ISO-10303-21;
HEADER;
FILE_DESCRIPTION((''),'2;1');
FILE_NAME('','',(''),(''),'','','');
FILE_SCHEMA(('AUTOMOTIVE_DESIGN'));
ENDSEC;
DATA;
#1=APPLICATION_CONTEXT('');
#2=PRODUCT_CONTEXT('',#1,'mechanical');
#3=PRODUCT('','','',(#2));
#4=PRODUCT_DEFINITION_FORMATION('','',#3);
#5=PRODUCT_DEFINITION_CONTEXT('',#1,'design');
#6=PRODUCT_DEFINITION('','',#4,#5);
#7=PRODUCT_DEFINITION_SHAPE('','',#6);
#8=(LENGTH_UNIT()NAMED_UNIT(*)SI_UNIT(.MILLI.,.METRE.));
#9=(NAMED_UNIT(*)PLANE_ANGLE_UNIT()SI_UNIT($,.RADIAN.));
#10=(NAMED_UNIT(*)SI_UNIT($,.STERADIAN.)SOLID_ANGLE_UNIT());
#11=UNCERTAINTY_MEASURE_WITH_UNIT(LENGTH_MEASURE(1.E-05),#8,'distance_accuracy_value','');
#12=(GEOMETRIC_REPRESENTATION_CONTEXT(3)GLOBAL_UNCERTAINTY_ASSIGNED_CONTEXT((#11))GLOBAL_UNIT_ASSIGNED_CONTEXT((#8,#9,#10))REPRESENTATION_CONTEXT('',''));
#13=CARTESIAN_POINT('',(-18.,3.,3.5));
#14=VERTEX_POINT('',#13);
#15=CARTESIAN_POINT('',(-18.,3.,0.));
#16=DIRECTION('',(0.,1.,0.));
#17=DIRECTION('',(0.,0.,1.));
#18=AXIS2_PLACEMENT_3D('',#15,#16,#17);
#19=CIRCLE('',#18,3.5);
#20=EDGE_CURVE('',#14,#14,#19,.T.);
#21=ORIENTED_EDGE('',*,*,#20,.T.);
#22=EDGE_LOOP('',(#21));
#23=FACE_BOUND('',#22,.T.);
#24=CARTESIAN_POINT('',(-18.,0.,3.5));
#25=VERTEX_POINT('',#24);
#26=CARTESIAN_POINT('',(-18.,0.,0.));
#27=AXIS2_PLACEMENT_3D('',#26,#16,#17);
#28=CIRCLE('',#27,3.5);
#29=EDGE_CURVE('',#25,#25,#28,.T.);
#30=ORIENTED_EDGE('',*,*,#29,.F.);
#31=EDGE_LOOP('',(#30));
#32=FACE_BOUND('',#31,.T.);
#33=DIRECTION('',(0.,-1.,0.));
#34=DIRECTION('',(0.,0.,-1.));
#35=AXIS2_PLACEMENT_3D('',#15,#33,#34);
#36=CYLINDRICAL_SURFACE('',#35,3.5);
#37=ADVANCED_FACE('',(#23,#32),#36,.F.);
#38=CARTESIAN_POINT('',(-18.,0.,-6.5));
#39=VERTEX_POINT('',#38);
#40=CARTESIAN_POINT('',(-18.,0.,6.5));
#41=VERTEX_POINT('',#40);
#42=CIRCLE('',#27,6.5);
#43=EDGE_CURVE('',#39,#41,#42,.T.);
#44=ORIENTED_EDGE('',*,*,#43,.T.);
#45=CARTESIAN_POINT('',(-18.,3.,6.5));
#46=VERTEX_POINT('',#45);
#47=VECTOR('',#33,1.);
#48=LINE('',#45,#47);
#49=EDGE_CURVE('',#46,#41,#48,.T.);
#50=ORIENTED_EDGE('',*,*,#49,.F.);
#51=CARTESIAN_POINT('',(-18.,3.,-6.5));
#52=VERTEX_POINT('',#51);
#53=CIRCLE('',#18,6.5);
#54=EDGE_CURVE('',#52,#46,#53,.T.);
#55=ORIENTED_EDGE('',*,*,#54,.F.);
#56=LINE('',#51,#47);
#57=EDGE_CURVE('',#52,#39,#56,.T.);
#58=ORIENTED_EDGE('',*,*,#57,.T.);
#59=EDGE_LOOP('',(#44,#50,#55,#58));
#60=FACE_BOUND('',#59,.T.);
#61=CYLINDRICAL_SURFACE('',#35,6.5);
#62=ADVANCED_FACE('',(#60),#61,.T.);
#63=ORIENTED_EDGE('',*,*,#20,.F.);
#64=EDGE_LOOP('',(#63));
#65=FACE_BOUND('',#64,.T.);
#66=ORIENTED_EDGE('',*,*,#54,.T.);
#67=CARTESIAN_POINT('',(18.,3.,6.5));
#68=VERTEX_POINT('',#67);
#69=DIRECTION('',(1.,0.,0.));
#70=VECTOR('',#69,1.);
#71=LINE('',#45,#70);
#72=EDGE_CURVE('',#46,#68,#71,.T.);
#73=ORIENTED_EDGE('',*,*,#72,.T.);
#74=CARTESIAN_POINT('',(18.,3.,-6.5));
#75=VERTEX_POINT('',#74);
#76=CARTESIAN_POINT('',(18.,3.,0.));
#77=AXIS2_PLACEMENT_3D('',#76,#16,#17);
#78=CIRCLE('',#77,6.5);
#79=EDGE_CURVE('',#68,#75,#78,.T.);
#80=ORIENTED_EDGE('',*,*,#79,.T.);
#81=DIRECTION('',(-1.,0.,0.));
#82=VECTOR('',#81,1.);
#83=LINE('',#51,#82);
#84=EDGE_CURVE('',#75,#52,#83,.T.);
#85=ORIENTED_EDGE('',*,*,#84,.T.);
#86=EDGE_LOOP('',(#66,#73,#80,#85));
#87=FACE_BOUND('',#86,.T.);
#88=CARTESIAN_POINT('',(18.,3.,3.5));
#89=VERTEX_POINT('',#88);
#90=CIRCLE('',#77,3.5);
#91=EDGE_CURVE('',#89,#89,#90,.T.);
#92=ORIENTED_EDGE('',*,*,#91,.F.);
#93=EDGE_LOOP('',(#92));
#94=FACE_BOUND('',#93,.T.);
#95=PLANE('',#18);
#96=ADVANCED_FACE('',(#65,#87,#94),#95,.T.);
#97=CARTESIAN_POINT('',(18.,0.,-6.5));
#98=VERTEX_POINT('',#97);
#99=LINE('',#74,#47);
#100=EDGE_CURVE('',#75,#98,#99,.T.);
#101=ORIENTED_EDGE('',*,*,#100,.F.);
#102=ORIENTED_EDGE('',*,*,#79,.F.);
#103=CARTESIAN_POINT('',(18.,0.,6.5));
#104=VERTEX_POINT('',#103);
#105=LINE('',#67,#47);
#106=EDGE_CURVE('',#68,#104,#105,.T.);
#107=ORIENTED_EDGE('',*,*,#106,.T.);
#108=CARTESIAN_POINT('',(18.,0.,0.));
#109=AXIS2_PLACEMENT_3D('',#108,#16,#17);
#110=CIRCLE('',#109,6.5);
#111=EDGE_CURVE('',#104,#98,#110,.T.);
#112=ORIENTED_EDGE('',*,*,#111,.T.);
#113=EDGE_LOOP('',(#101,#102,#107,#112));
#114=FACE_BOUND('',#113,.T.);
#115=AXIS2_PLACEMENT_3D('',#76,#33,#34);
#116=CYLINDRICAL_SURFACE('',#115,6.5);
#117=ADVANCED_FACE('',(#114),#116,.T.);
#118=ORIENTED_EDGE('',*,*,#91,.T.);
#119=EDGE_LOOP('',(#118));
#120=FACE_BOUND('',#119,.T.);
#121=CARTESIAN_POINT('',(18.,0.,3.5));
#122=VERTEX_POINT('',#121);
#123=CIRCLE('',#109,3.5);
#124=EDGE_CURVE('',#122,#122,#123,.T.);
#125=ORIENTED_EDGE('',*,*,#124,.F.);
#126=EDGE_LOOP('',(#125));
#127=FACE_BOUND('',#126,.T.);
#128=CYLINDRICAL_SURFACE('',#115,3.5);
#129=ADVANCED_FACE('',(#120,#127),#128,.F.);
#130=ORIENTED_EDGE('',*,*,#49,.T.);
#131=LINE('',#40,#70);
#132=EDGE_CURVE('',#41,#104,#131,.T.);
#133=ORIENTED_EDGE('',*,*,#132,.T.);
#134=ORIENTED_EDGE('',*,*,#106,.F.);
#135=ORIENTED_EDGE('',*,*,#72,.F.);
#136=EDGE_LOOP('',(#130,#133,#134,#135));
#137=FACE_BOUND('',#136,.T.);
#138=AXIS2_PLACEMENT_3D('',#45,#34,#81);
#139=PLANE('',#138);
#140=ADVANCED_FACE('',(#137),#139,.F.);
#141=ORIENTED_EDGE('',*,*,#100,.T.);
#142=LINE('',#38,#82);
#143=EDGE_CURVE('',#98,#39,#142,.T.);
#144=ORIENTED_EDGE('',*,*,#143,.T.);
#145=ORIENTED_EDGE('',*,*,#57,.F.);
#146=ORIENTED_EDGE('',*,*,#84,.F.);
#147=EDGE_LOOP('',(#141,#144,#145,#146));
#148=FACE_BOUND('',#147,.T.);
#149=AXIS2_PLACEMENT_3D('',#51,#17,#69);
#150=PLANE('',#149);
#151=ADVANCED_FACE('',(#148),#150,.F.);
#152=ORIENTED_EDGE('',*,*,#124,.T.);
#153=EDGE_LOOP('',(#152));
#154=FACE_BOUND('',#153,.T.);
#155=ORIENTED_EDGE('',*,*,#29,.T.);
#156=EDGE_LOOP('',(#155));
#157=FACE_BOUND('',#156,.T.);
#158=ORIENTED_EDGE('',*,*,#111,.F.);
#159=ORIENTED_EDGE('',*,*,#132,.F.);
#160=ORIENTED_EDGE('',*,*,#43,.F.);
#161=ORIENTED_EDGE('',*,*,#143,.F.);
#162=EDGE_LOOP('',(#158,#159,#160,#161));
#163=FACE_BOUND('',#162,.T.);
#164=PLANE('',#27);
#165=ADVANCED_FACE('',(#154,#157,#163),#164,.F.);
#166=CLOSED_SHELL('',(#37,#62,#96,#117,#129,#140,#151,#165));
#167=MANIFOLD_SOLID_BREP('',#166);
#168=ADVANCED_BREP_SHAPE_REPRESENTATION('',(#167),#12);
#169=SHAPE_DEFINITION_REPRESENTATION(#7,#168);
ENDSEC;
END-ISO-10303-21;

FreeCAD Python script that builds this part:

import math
import FreeCAD as App
import Part
import Sketcher

V = App.Vector

doc = App.newDocument("Part")
body = doc.addObject("PartDesign::Body", "Body")

# Sketch on XZ plane
sketch1 = body.newObject("Sketcher::SketchObject", "Sketch")
sketch1.AttachmentSupport = (doc.getObject("XZ_Plane"), [""])
sketch1.MapMode = "FlatFace"
sketch1.addGeometry(Part.LineSegment(V(18, -6.5, 0), V(-18, -6.5, 0)), False)
sketch1.addGeometry(Part.ArcOfCircle(Part.Circle(V(-18, 0, 0), V(0, 0, 1), 6.5), math.radians(90), math.radians(270)), False)
sketch1.addGeometry(Part.LineSegment(V(-18, 6.5, 0), V(18, 6.5, 0)), False)
sketch1.addGeometry(Part.ArcOfCircle(Part.Circle(V(18, 0, 0), V(0, 0, 1), 6.5), math.radians(-90), math.radians(90)), False)
sketch1.addGeometry(Part.Circle(V(18, 0, 0), V(0, 0, 1), 3.5), False)
sketch1.addGeometry(Part.Circle(V(-18, 0, 0), V(0, 0, 1), 3.5), False)
sketch1.addConstraint(Sketcher.Constraint("Tangent", 0, 2, 1, 2))
sketch1.addConstraint(Sketcher.Constraint("Tangent", 1, 1, 2, 1))
sketch1.addConstraint(Sketcher.Constraint("Tangent", 2, 2, 3, 2))
sketch1.addConstraint(Sketcher.Constraint("Tangent", 3, 1, 0, 1))
sketch1.addConstraint(Sketcher.Constraint("Horizontal", 0))
sketch1.addConstraint(Sketcher.Constraint("Horizontal", 2))
sketch1.addConstraint(Sketcher.Constraint("Coincident", 4, 3, 3, 3))
sketch1.addConstraint(Sketcher.Constraint("Coincident", 5, 3, 1, 3))
sketch1.addConstraint(Sketcher.Constraint("Equal", 4, 5))
sketch1.addConstraint(Sketcher.Constraint("Symmetric", 1, 3, 3, 3, -1, 1))
sketch1.addConstraint(Sketcher.Constraint("Diameter", 4, 7.0))
sketch1.addConstraint(Sketcher.Constraint("Radius", 1, 6.5))
sketch1.addConstraint(Sketcher.Constraint("DistanceX", 0, 2, 0, 1, 36.0))
pad1 = body.newObject("PartDesign::Pad", "Pad")
pad1.Profile = sketch1
pad1.Length = 3
pad1.Reversed = True

doc.recompute()
